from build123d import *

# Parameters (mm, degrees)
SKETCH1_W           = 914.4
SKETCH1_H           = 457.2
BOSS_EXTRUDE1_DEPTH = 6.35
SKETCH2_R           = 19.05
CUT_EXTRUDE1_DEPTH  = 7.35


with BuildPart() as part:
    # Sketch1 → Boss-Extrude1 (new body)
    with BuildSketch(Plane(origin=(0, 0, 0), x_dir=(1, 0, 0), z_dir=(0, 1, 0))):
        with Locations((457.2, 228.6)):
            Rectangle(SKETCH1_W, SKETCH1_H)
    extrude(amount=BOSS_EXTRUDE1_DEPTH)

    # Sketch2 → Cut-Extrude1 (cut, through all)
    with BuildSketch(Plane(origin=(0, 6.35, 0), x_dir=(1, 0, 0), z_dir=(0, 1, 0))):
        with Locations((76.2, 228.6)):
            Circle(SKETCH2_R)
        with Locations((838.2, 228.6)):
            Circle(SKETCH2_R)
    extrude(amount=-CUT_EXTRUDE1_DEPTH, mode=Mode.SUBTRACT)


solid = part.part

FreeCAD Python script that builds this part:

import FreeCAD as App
import Part
import Sketcher
from FreeCAD import Vector
Q = App.Units.Quantity

doc = App.newDocument("Part")
params = doc.addObject("Spreadsheet::Sheet", "Params")
for row, (alias, value) in enumerate([
    ("sketch1_width", "36 in"),
    ("sketch1_height", "18 in"),
    ("pad1_length", "0.25 in"),
    ("sketch2_diameter", "1.5 in"),
], start=1):
    params.set(f"A{row}", alias)
    params.set(f"B{row}", "=" + value)
    params.setAlias(f"B{row}", alias)

body = doc.addObject("PartDesign::Body", "Body")

# Sketch on XZ plane
sketch1 = body.newObject("Sketcher::SketchObject", "Sketch")
sketch1.AttachmentSupport = (doc.getObject("XZ_Plane"), [""])
sketch1.MapMode = "FlatFace"
sketch1.addGeometry([
    Part.LineSegment(Vector(0, -457, 0), Vector(0, 0, 0)),
    Part.LineSegment(Vector(0, 0, 0), Vector(914, 0, 0)),
    Part.LineSegment(Vector(914, 0, 0), Vector(914, -457, 0)),
    Part.LineSegment(Vector(914, -457, 0), Vector(0, -457, 0)),
], False)
sketch1.addConstraint([
    Sketcher.Constraint("Coincident", 0, 2, 1, 1),
    Sketcher.Constraint("Coincident", 1, 2, 2, 1),
    Sketcher.Constraint("Coincident", 2, 2, 3, 1),
    Sketcher.Constraint("Coincident", 3, 2, 0, 1),
    Sketcher.Constraint("Vertical", 0),
    Sketcher.Constraint("Horizontal", 1),
    Sketcher.Constraint("Vertical", 2),
    Sketcher.Constraint("Horizontal", 3),
    Sketcher.Constraint("Coincident", 0, 2, -1, 1),
    Sketcher.Constraint("DistanceX", 1, 1, 1, 2, Q("36 in")),
    Sketcher.Constraint("DistanceY", 0, 1, 0, 2, Q("18 in")),
])
sketch1.setExpression("Constraints[9]", "Params.sketch1_width")
sketch1.setExpression("Constraints[10]", "Params.sketch1_height")
pad1 = body.newObject("PartDesign::Pad", "Pad")
pad1.Profile = sketch1
pad1.setExpression("Length", "Params.pad1_length")
pad1.Reversed = True

# Sketch on XZ plane
sketch2 = body.newObject("Sketcher::SketchObject", "Sketch001")
sketch2.AttachmentSupport = (doc.getObject("XZ_Plane"), [""])
sketch2.MapMode = "FlatFace"
sketch2.AttachmentOffset = App.Placement(Vector(0, 0, -0.25 * 25.4), App.Rotation())
sketch2.addGeometry([
    Part.Circle(Vector(76, -229, 0), Vector(0, 0, 1), 19),
    Part.Circle(Vector(838, -229, 0), Vector(0, 0, 1), 19),
], False)
sketch2.addConstraint([
    Sketcher.Constraint("Equal", 0, 1),
    Sketcher.Constraint("Horizontal", 0, 3, 1, 3),
    Sketcher.Constraint("Diameter", 0, Q("1.5 in")),
    Sketcher.Constraint("DistanceX", -1, 1, 0, 3, Q("3 in")),
    Sketcher.Constraint("DistanceY", 0, 3, -1, 1, Q("9 in")),
    Sketcher.Constraint("DistanceX", -1, 1, 1, 3, Q("33 in")),
])
sketch2.setExpression("Constraints[2]", "Params.sketch2_diameter")
pocket1 = body.newObject("PartDesign::Pocket", "Pocket")
pocket1.Profile = sketch2
pocket1.Type = "ThroughAll"
pocket1.Reversed = True

doc.recompute()
